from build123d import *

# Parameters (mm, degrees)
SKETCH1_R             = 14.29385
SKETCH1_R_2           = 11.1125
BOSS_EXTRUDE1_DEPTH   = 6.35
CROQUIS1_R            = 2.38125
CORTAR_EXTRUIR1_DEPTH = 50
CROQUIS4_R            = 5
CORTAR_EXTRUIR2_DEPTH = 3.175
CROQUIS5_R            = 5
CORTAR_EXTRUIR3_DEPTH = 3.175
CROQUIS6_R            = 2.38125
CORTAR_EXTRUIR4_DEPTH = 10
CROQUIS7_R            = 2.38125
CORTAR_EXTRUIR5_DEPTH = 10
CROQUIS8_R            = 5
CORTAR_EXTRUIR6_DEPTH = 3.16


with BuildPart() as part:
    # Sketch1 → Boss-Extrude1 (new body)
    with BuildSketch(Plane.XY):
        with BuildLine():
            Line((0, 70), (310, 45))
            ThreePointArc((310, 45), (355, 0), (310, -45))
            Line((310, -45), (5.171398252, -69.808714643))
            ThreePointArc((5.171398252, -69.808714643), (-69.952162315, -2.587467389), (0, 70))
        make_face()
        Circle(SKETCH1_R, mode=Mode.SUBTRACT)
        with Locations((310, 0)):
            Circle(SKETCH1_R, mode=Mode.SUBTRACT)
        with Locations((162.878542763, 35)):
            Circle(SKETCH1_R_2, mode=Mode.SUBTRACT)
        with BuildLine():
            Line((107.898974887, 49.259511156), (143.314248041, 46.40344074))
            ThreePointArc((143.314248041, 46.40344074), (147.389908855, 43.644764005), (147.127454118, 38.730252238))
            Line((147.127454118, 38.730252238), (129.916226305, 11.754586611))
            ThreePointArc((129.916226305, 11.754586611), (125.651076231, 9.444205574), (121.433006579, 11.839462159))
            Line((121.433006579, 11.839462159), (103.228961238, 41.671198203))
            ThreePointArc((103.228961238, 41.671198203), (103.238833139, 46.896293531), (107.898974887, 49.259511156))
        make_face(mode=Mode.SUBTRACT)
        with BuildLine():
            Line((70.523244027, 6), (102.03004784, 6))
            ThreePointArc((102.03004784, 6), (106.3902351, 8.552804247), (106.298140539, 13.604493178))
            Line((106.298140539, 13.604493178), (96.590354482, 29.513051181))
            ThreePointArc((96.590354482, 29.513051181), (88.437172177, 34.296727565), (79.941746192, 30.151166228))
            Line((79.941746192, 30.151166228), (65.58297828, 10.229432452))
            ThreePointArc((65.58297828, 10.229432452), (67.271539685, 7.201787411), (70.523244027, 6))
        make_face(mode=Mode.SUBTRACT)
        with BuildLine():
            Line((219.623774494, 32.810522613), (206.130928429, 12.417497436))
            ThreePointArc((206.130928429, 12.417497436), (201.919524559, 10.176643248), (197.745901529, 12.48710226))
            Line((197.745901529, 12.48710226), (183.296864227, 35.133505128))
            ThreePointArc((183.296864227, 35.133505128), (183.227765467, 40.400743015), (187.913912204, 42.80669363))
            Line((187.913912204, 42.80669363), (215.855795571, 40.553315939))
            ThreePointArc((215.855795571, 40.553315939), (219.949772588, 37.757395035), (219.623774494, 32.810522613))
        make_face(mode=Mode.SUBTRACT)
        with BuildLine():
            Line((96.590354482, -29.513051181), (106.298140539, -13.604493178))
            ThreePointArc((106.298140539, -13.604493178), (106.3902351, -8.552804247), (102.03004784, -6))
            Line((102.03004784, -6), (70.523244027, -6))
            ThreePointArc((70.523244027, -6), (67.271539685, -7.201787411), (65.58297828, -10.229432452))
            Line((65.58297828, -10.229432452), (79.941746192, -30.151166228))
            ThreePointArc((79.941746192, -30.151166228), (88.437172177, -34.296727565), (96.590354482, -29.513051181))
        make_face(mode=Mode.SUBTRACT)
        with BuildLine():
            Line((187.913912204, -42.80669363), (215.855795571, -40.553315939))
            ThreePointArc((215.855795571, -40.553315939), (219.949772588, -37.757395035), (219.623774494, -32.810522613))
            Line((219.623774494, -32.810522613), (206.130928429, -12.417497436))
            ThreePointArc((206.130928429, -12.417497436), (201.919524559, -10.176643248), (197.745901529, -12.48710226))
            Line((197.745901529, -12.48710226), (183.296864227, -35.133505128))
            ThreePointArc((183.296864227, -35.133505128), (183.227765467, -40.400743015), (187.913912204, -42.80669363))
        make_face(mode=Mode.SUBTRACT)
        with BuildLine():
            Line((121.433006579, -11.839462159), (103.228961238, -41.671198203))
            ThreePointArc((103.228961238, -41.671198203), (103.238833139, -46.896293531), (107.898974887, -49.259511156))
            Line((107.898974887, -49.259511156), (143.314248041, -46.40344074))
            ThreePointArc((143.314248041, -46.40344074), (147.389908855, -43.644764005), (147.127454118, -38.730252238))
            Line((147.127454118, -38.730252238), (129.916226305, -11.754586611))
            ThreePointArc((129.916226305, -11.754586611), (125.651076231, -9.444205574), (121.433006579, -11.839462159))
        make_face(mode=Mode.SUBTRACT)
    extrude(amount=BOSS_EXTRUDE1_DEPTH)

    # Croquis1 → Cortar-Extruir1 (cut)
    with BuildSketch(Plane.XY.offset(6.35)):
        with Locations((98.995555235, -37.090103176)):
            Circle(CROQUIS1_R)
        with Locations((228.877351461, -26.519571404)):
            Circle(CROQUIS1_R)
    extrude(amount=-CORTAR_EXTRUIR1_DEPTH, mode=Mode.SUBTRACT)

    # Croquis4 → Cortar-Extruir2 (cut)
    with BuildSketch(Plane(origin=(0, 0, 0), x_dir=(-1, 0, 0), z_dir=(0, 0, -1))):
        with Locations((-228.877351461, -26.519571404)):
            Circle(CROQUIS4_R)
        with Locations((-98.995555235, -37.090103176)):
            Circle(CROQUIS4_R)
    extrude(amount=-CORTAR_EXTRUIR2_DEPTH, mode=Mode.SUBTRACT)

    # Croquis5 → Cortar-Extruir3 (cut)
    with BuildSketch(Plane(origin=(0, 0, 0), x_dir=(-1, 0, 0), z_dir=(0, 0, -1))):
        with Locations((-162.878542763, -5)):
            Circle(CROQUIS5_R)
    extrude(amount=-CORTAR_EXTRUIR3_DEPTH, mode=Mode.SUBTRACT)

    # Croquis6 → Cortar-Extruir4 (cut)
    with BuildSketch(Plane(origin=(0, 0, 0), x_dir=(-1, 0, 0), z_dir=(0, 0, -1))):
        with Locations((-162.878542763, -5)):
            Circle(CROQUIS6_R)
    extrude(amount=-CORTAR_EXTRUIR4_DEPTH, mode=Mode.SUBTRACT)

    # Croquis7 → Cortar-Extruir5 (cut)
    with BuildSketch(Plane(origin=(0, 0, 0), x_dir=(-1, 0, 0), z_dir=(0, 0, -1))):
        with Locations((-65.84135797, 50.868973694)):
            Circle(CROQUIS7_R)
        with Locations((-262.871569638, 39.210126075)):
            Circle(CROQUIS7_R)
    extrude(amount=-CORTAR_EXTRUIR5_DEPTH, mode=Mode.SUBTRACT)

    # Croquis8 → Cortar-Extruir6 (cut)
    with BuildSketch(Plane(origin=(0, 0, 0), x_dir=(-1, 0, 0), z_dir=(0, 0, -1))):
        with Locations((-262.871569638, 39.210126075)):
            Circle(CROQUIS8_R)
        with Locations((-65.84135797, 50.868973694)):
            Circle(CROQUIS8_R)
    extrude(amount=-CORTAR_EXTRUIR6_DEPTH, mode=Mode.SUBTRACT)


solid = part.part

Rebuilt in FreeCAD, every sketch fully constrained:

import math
import FreeCAD as App
import Part
import Sketcher

doc = App.newDocument("Part")
body = doc.addObject("PartDesign::Body", "Body")

sketch1 = doc.addObject("Sketcher::SketchObject", "Sketch")
body.addObject(sketch1)
sketch1.AttachmentSupport = (doc.XY_Plane, [""])
sketch1.MapMode = "FlatFace"
sketch1.addGeometry(Part.LineSegment(App.Vector(310, 45, 0), App.Vector(0, 70, 0)), False)
sketch1.addGeometry(Part.ArcOfCircle(Part.Circle(App.Vector(0, 0, 0), App.Vector(0, 0, 1), 70), math.radians(90), math.radians(274)), False)
sketch1.addGeometry(Part.LineSegment(App.Vector(5, -70, 0), App.Vector(310, -45, 0)), False)
sketch1.addGeometry(Part.ArcOfCircle(Part.Circle(App.Vector(310, 0, 0), App.Vector(0, 0, 1), 45), math.radians(-90), math.radians(90)), False)
sketch1.addGeometry(Part.ArcOfCircle(Part.Circle(App.Vector(188, -38, 0), App.Vector(0, 0, 1), 5), math.radians(147), math.radians(275)), False)
sketch1.addGeometry(Part.LineSegment(App.Vector(183, -35, 0), App.Vector(198, -12, 0)), False)
sketch1.addGeometry(Part.ArcOfCircle(Part.Circle(App.Vector(202, -15, 0), App.Vector(0, 0, 1), 5), math.radians(33), math.radians(147)), False)
sketch1.addGeometry(Part.LineSegment(App.Vector(206, -12, 0), App.Vector(220, -33, 0)), False)
sketch1.addGeometry(Part.ArcOfCircle(Part.Circle(App.Vector(215, -36, 0), App.Vector(0, 0, 1), 5), math.radians(-85), math.radians(33)), False)
sketch1.addGeometry(Part.LineSegment(App.Vector(216, -41, 0), App.Vector(188, -43, 0)), False)
sketch1.addGeometry(Part.Circle(App.Vector(310, 0, 0), App.Vector(0, 0, 1), 14), False)
sketch1.addGeometry(Part.ArcOfCircle(Part.Circle(App.Vector(126, -14, 0), App.Vector(0, 0, 1), 5), math.radians(33), math.radians(149)), False)
sketch1.addGeometry(Part.LineSegment(App.Vector(130, -12, 0), App.Vector(147, -39, 0)), False)
sketch1.addGeometry(Part.ArcOfCircle(Part.Circle(App.Vector(143, -41, 0), App.Vector(0, 0, 1), 5), math.radians(-85), math.radians(33)), False)
sketch1.addGeometry(Part.LineSegment(App.Vector(143, -46, 0), App.Vector(108, -49, 0)), False)
sketch1.addGeometry(Part.ArcOfCircle(Part.Circle(App.Vector(107, -44, 0), App.Vector(0, 0, 1), 5), math.radians(149), math.radians(275)), False)
sketch1.addGeometry(Part.LineSegment(App.Vector(103, -42, 0), App.Vector(121, -12, 0)), False)
sketch1.addGeometry(Part.ArcOfCircle(Part.Circle(App.Vector(88, -24, 0), App.Vector(0, 0, 1), 10), math.radians(-144), math.radians(-31)), False)
sketch1.addGeometry(Part.LineSegment(App.Vector(80, -30, 0), App.Vector(66, -10, 0)), False)
sketch1.addGeometry(Part.ArcOfCircle(Part.Circle(App.Vector(71, -11, 0), App.Vector(0, 0, 1), 5), math.radians(90), math.radians(171)), False)
sketch1.addGeometry(Part.LineSegment(App.Vector(71, -6, 0), App.Vector(102, -6, 0)), False)
sketch1.addGeometry(Part.ArcOfCircle(Part.Circle(App.Vector(102, -11, 0), App.Vector(0, 0, 1), 5), math.radians(-31), math.radians(90)), False)
sketch1.addGeometry(Part.LineSegment(App.Vector(106, -14, 0), App.Vector(97, -30, 0)), False)
sketch1.addGeometry(Part.Circle(App.Vector(0, 0, 0), App.Vector(0, 0, 1), 14), False)
sketch1.addGeometry(Part.LineSegment(App.Vector(220, 33, 0), App.Vector(206, 12, 0)), False)
sketch1.addGeometry(Part.ArcOfCircle(Part.Circle(App.Vector(202, 15, 0), App.Vector(0, 0, 1), 5), math.radians(-147), math.radians(-33)), False)
sketch1.addGeometry(Part.LineSegment(App.Vector(198, 12, 0), App.Vector(183, 35, 0)), False)
sketch1.addGeometry(Part.ArcOfCircle(Part.Circle(App.Vector(188, 38, 0), App.Vector(0, 0, 1), 5), math.radians(85), math.radians(213)), False)
sketch1.addGeometry(Part.LineSegment(App.Vector(188, 43, 0), App.Vector(216, 41, 0)), False)
sketch1.addGeometry(Part.ArcOfCircle(Part.Circle(App.Vector(215, 36, 0), App.Vector(0, 0, 1), 5), math.radians(-33), math.radians(85)), False)
sketch1.addGeometry(Part.Circle(App.Vector(163, 35, 0), App.Vector(0, 0, 1), 11), False)
sketch1.addGeometry(Part.ArcOfCircle(Part.Circle(App.Vector(71, 11, 0), App.Vector(0, 0, 1), 5), math.radians(-171), math.radians(-90)), False)
sketch1.addGeometry(Part.LineSegment(App.Vector(66, 10, 0), App.Vector(80, 30, 0)), False)
sketch1.addGeometry(Part.ArcOfCircle(Part.Circle(App.Vector(88, 24, 0), App.Vector(0, 0, 1), 10), math.radians(31), math.radians(144)), False)
sketch1.addGeometry(Part.LineSegment(App.Vector(97, 30, 0), App.Vector(106, 14, 0)), False)
sketch1.addGeometry(Part.ArcOfCircle(Part.Circle(App.Vector(102, 11, 0), App.Vector(0, 0, 1), 5), math.radians(-90), math.radians(31)), False)
sketch1.addGeometry(Part.LineSegment(App.Vector(102, 6, 0), App.Vector(71, 6, 0)), False)
sketch1.addGeometry(Part.LineSegment(App.Vector(108, 49, 0), App.Vector(143, 46, 0)), False)
sketch1.addGeometry(Part.ArcOfCircle(Part.Circle(App.Vector(143, 41, 0), App.Vector(0, 0, 1), 5), math.radians(-33), math.radians(85)), False)
sketch1.addGeometry(Part.LineSegment(App.Vector(147, 39, 0), App.Vector(130, 12, 0)), False)
sketch1.addGeometry(Part.ArcOfCircle(Part.Circle(App.Vector(126, 14, 0), App.Vector(0, 0, 1), 5), math.radians(-149), math.radians(-33)), False)
sketch1.addGeometry(Part.LineSegment(App.Vector(121, 12, 0), App.Vector(103, 42, 0)), False)
sketch1.addGeometry(Part.ArcOfCircle(Part.Circle(App.Vector(107, 44, 0), App.Vector(0, 0, 1), 5), math.radians(85), math.radians(211)), False)
sketch1.addConstraint(Sketcher.Constraint("Coincident", 0, 2, 1, 1))
sketch1.addConstraint(Sketcher.Constraint("Coincident", 1, 2, 2, 1))
sketch1.addConstraint(Sketcher.Constraint("Coincident", 2, 2, 3, 1))
sketch1.addConstraint(Sketcher.Constraint("Coincident", 3, 2, 0, 1))
sketch1.addConstraint(Sketcher.Constraint("Tangent", 4, 1, 5, 1))
sketch1.addConstraint(Sketcher.Constraint("Tangent", 5, 2, 6, 2))
sketch1.addConstraint(Sketcher.Constraint("Tangent", 6, 1, 7, 1))
sketch1.addConstraint(Sketcher.Constraint("Tangent", 7, 2, 8, 2))
sketch1.addConstraint(Sketcher.Constraint("Tangent", 8, 1, 9, 1))
sketch1.addConstraint(Sketcher.Constraint("Tangent", 9, 2, 4, 2))
sketch1.addConstraint(Sketcher.Constraint("Tangent", 11, 1, 12, 1))
sketch1.addConstraint(Sketcher.Constraint("Tangent", 12, 2, 13, 2))
sketch1.addConstraint(Sketcher.Constraint("Tangent", 13, 1, 14, 1))
sketch1.addConstraint(Sketcher.Constraint("Tangent", 14, 2, 15, 2))
sketch1.addConstraint(Sketcher.Constraint("Tangent", 15, 1, 16, 1))
sketch1.addConstraint(Sketcher.Constraint("Tangent", 16, 2, 11, 2))
sketch1.addConstraint(Sketcher.Constraint("Tangent", 17, 1, 18, 1))
sketch1.addConstraint(Sketcher.Constraint("Coincident", 18, 2, 19, 2))
sketch1.addConstraint(Sketcher.Constraint("Tangent", 19, 1, 20, 1))
sketch1.addConstraint(Sketcher.Constraint("Tangent", 20, 2, 21, 2))
sketch1.addConstraint(Sketcher.Constraint("Tangent", 21, 1, 22, 1))
sketch1.addConstraint(Sketcher.Constraint("Tangent", 22, 2, 17, 2))
sketch1.addConstraint(Sketcher.Constraint("Tangent", 24, 2, 25, 2))
sketch1.addConstraint(Sketcher.Constraint("Tangent", 25, 1, 26, 1))
sketch1.addConstraint(Sketcher.Constraint("Tangent", 26, 2, 27, 2))
sketch1.addConstraint(Sketcher.Constraint("Tangent", 27, 1, 28, 1))
sketch1.addConstraint(Sketcher.Constraint("Tangent", 28, 2, 29, 2))
sketch1.addConstraint(Sketcher.Constraint("Tangent", 29, 1, 24, 1))
sketch1.addConstraint(Sketcher.Constraint("Coincident", 31, 1, 32, 1))
sketch1.addConstraint(Sketcher.Constraint("Tangent", 32, 2, 33, 2))
sketch1.addConstraint(Sketcher.Constraint("Tangent", 33, 1, 34, 1))
sketch1.addConstraint(Sketcher.Constraint("Tangent", 34, 2, 35, 2))
sketch1.addConstraint(Sketcher.Constraint("Tangent", 35, 1, 36, 1))
sketch1.addConstraint(Sketcher.Constraint("Tangent", 36, 2, 31, 2))
sketch1.addConstraint(Sketcher.Constraint("Tangent", 37, 2, 38, 2))
sketch1.addConstraint(Sketcher.Constraint("Tangent", 38, 1, 39, 1))
sketch1.addConstraint(Sketcher.Constraint("Tangent", 39, 2, 40, 2))
sketch1.addConstraint(Sketcher.Constraint("Tangent", 40, 1, 41, 1))
sketch1.addConstraint(Sketcher.Constraint("Tangent", 41, 2, 42, 2))
sketch1.addConstraint(Sketcher.Constraint("Tangent", 42, 1, 37, 1))
sketch1.addConstraint(Sketcher.Constraint("Horizontal", 20))
sketch1.addConstraint(Sketcher.Constraint("Horizontal", 36))
sketch1.addConstraint(Sketcher.Constraint("Coincident", 1, 3, -1, 1))
sketch1.addConstraint(Sketcher.Constraint("Coincident", 23, 3, -1, 1))
sketch1.addConstraint(Sketcher.Constraint("Coincident", 10, 3, 3, 3))
sketch1.addConstraint(Sketcher.Constraint("Equal", 4, 6))
sketch1.addConstraint(Sketcher.Constraint("Equal", 6, 8))
sketch1.addConstraint(Sketcher.Constraint("Equal", 8, 11))
sketch1.addConstraint(Sketcher.Constraint("Equal", 11, 13))
sketch1.addConstraint(Sketcher.Constraint("Equal", 13, 15))
sketch1.addConstraint(Sketcher.Constraint("Equal", 15, 19))
sketch1.addConstraint(Sketcher.Constraint("Equal", 19, 21))
sketch1.addConstraint(Sketcher.Constraint("Equal", 10, 23))
sketch1.addConstraint(Sketcher.Constraint("Equal", 21, 25))
sketch1.addConstraint(Sketcher.Constraint("Equal", 25, 27))
sketch1.addConstraint(Sketcher.Constraint("Equal", 27, 29))
sketch1.addConstraint(Sketcher.Constraint("Equal", 29, 31))
sketch1.addConstraint(Sketcher.Constraint("Equal", 17, 33))
sketch1.addConstraint(Sketcher.Constraint("Equal", 31, 35))
sketch1.addConstraint(Sketcher.Constraint("Equal", 35, 38))
sketch1.addConstraint(Sketcher.Constraint("Equal", 38, 40))
sketch1.addConstraint(Sketcher.Constraint("Equal", 40, 42))
sketch1.addConstraint(Sketcher.Constraint("Symmetric", 6, 3, 25, 3, -1))
sketch1.addConstraint(Sketcher.Constraint("Symmetric", 4, 3, 27, 3, -1))
sketch1.addConstraint(Sketcher.Constraint("Symmetric", 8, 3, 29, 3, -1))
sketch1.addConstraint(Sketcher.Constraint("Symmetric", 19, 3, 31, 3, -1))
sketch1.addConstraint(Sketcher.Constraint("Symmetric", 17, 3, 33, 3, -1))
sketch1.addConstraint(Sketcher.Constraint("Symmetric", 13, 3, 38, 3, -1))
sketch1.addConstraint(Sketcher.Constraint("Symmetric", 11, 3, 40, 3, -1))
sketch1.addConstraint(Sketcher.Constraint("Symmetric", 15, 3, 42, 3, -1))
sketch1.addConstraint(Sketcher.Constraint("Symmetric", 2, 2, 3, 2, -1))
sketch1.addConstraint(Sketcher.Constraint("PointOnObject", 0, 2, -2))
sketch1.addConstraint(Sketcher.Constraint("Parallel", 9, 14))
sketch1.addConstraint(Sketcher.Constraint("Parallel", 16, 22))
sketch1.addConstraint(Sketcher.Constraint("Parallel", 12, 26))
sketch1.addConstraint(Sketcher.Constraint("Parallel", 0, 28))
sketch1.addConstraint(Sketcher.Constraint("Parallel", 34, 41))
sketch1.addConstraint(Sketcher.Constraint("Vertical", 10, 3, 2, 2))
sketch1.addConstraint(Sketcher.Constraint("Vertical", 18, 2, 31, 1))
sketch1.addConstraint(Sketcher.Constraint("Radius", 1, 70.0))
sketch1.addConstraint(Sketcher.Constraint("Radius", 3, 45.0))
sketch1.addConstraint(Sketcher.Constraint("Radius", 4, 5.0))
sketch1.addConstraint(Sketcher.Constraint("Radius", 17, 10.0))
sketch1.addConstraint(Sketcher.Constraint("Diameter", 30, 22.225))
sketch1.addConstraint(Sketcher.Constraint("DistanceX", -1, 1, 3, 3, 310.0))
sketch1.addConstraint(Sketcher.Constraint("DistanceY", 19, 3, -1, 1, 11.0))
sketch1.addConstraint(Sketcher.Constraint("DistanceY", -1, 1, 30, 3, 35.0))
sketch1.addConstraint(Sketcher.Constraint("Diameter", 10, 28.5877))
sketch1.addConstraint(Sketcher.Constraint("Distance", 9, 28.032598))
sketch1.addConstraint(Sketcher.Constraint("DistanceX", -1, 1, 11, 3, 125.701099))
sketch1.addConstraint(Sketcher.Constraint("DistanceX", -1, 1, 1, 2, 5.171398))
sketch1.addConstraint(Sketcher.Constraint("DistanceX", -1, 1, 5, 2, 197.745902))
sketch1.addConstraint(Sketcher.Constraint("DistanceY", 15, 1, -1, 1, 41.671198))
sketch1.addConstraint(Sketcher.Constraint("Distance", 5, 26.863251))
sketch1.addConstraint(Sketcher.Constraint("Distance", 12, 31.998639))
sketch1.addConstraint(Sketcher.Constraint("Distance", 14, 35.530251))
sketch1.addConstraint(Sketcher.Constraint("Distance", 18, 24.55707))
sketch1.addConstraint(Sketcher.Constraint("DistanceX", 20, 1, 20, 2, 31.506804))
sketch1.addConstraint(Sketcher.Constraint("DistanceX", -1, 1, 4, 3, 187.511991))
sketch1.addConstraint(Sketcher.Constraint("DistanceY", 6, 3, -1, 1, 15.176471))
sketch1.addConstraint(Sketcher.Constraint("DistanceX", -1, 1, 17, 3, 88.054169))
sketch1.addConstraint(Sketcher.Constraint("DistanceX", -1, 1, 18, 2, 65.582978))
sketch1.addConstraint(Sketcher.Constraint("DistanceX", -1, 1, 30, 3, 162.878543))
pad1 = doc.addObject("PartDesign::Pad", "Pad")
body.addObject(pad1)
pad1.Profile = sketch1
pad1.Length = 6.35

sketch2 = doc.addObject("Sketcher::SketchObject", "Sketch001")
body.addObject(sketch2)
sketch2.AttachmentSupport = (doc.XY_Plane, [""])
sketch2.MapMode = "FlatFace"
sketch2.AttachmentOffset = App.Placement(App.Vector(0, 0, 6.35), App.Rotation())
sketch2.addGeometry(Part.Circle(App.Vector(99, -37.1, 0), App.Vector(0, 0, 1), 2.4), False)
sketch2.addGeometry(Part.Circle(App.Vector(228.9, -26.5, 0), App.Vector(0, 0, 1), 2.4), False)
sketch2.addConstraint(Sketcher.Constraint("Equal", 0, 1))
sketch2.addConstraint(Sketcher.Constraint("Diameter", 0, 4.7625))
sketch2.addConstraint(Sketcher.Constraint("DistanceX", -1, 1, 1, 3, 228.877351))
sketch2.addConstraint(Sketcher.Constraint("DistanceY", 1, 3, -1, 1, 26.519571))
sketch2.addConstraint(Sketcher.Constraint("DistanceY", 0, 3, 1, 3, 10.570532))
sketch2.addConstraint(Sketcher.Constraint("DistanceX", -1, 1, 0, 3, 98.995555))
pocket1 = doc.addObject("PartDesign::Pocket", "Pocket")
body.addObject(pocket1)
pocket1.Profile = sketch2
pocket1.Length = 50

sketch3 = doc.addObject("Sketcher::SketchObject", "Sketch002")
body.addObject(sketch3)
sketch3.AttachmentSupport = (doc.XY_Plane, [""])
sketch3.MapMode = "FlatFace"
sketch3.addGeometry(Part.Circle(App.Vector(229, -27, 0), App.Vector(0, 0, 1), 5), False)
sketch3.addGeometry(Part.Circle(App.Vector(99, -37, 0), App.Vector(0, 0, 1), 5), False)
sketch3.addConstraint(Sketcher.Constraint("Equal", 0, 1))
sketch3.addConstraint(Sketcher.Constraint("Diameter", 0, 10.0))
sketch3.addConstraint(Sketcher.Constraint("DistanceX", -1, 1, 0, 3, 228.877351))
sketch3.addConstraint(Sketcher.Constraint("DistanceY", 0, 3, -1, 1, 26.519571))
sketch3.addConstraint(Sketcher.Constraint("DistanceY", 1, 3, 0, 3, 10.570532))
sketch3.addConstraint(Sketcher.Constraint("DistanceX", -1, 1, 1, 3, 98.995555))
pocket2 = doc.addObject("PartDesign::Pocket", "Pocket001")
body.addObject(pocket2)
pocket2.Profile = sketch3
pocket2.Length = 3.175
pocket2.Reversed = True

sketch4 = doc.addObject("Sketcher::SketchObject", "Sketch003")
body.addObject(sketch4)
sketch4.AttachmentSupport = (doc.XY_Plane, [""])
sketch4.MapMode = "FlatFace"
sketch4.addGeometry(Part.Circle(App.Vector(163, -5, 0), App.Vector(0, 0, 1), 5), False)
sketch4.addConstraint(Sketcher.Constraint("Diameter", 0, 10.0))
sketch4.addConstraint(Sketcher.Constraint("DistanceY", 0, 3, -1, 1, 5.0))
sketch4.addConstraint(Sketcher.Constraint("DistanceX", -1, 1, 0, 3, 162.878543))
pocket3 = doc.addObject("PartDesign::Pocket", "Pocket002")
body.addObject(pocket3)
pocket3.Profile = sketch4
pocket3.Length = 3.175
pocket3.Reversed = True

sketch5 = doc.addObject("Sketcher::SketchObject", "Sketch004")
body.addObject(sketch5)
sketch5.AttachmentSupport = (doc.XY_Plane, [""])
sketch5.MapMode = "FlatFace"
sketch5.addGeometry(Part.Circle(App.Vector(162.9, -5, 0), App.Vector(0, 0, 1), 2.4), False)
sketch5.addConstraint(Sketcher.Constraint("DistanceY", 0, 3, -1, 1, 5.0))
sketch5.addConstraint(Sketcher.Constraint("Diameter", 0, 4.7625))
sketch5.addConstraint(Sketcher.Constraint("DistanceX", -1, 1, 0, 3, 162.878543))
pocket4 = doc.addObject("PartDesign::Pocket", "Pocket003")
body.addObject(pocket4)
pocket4.Profile = sketch5
pocket4.Length = 10
pocket4.Reversed = True

sketch6 = doc.addObject("Sketcher::SketchObject", "Sketch005")
body.addObject(sketch6)
sketch6.AttachmentSupport = (doc.XY_Plane, [""])
sketch6.MapMode = "FlatFace"
sketch6.addGeometry(Part.Circle(App.Vector(65.8, 50.9, 0), App.Vector(0, 0, 1), 2.4), False)
sketch6.addGeometry(Part.Circle(App.Vector(262.9, 39.2, 0), App.Vector(0, 0, 1), 2.4), False)
sketch6.addConstraint(Sketcher.Constraint("Equal", 0, 1))
sketch6.addConstraint(Sketcher.Constraint("Diameter", 0, 4.7625))
sketch6.addConstraint(Sketcher.Constraint("DistanceX", -1, 1, 1, 3, 262.87157))
sketch6.addConstraint(Sketcher.Constraint("DistanceX", 0, 3, 1, 3, 197.030212))
sketch6.addConstraint(Sketcher.Constraint("DistanceY", -1, 1, 0, 3, 50.868974))
sketch6.addConstraint(Sketcher.Constraint("DistanceY", -1, 1, 1, 3, 39.210126))
pocket5 = doc.addObject("PartDesign::Pocket", "Pocket004")
body.addObject(pocket5)
pocket5.Profile = sketch6
pocket5.Length = 10
pocket5.Reversed = True

sketch7 = doc.addObject("Sketcher::SketchObject", "Sketch006")
body.addObject(sketch7)
sketch7.AttachmentSupport = (doc.XY_Plane, [""])
sketch7.MapMode = "FlatFace"
sketch7.addGeometry(Part.Circle(App.Vector(263, 39, 0), App.Vector(0, 0, 1), 5), False)
sketch7.addGeometry(Part.Circle(App.Vector(66, 51, 0), App.Vector(0, 0, 1), 5), False)
sketch7.addConstraint(Sketcher.Constraint("Equal", 0, 1))
sketch7.addConstraint(Sketcher.Constraint("Diameter", 0, 10.0))
sketch7.addConstraint(Sketcher.Constraint("DistanceX", -1, 1, 0, 3, 262.87157))
sketch7.addConstraint(Sketcher.Constraint("DistanceX", 1, 3, 0, 3, 197.030212))
sketch7.addConstraint(Sketcher.Constraint("DistanceY", -1, 1, 0, 3, 39.210126))
sketch7.addConstraint(Sketcher.Constraint("DistanceY", -1, 1, 1, 3, 50.868974))
pocket6 = doc.addObject("PartDesign::Pocket", "Pocket005")
body.addObject(pocket6)
pocket6.Profile = sketch7
pocket6.Length = 3.16
pocket6.Reversed = True

doc.recompute()
